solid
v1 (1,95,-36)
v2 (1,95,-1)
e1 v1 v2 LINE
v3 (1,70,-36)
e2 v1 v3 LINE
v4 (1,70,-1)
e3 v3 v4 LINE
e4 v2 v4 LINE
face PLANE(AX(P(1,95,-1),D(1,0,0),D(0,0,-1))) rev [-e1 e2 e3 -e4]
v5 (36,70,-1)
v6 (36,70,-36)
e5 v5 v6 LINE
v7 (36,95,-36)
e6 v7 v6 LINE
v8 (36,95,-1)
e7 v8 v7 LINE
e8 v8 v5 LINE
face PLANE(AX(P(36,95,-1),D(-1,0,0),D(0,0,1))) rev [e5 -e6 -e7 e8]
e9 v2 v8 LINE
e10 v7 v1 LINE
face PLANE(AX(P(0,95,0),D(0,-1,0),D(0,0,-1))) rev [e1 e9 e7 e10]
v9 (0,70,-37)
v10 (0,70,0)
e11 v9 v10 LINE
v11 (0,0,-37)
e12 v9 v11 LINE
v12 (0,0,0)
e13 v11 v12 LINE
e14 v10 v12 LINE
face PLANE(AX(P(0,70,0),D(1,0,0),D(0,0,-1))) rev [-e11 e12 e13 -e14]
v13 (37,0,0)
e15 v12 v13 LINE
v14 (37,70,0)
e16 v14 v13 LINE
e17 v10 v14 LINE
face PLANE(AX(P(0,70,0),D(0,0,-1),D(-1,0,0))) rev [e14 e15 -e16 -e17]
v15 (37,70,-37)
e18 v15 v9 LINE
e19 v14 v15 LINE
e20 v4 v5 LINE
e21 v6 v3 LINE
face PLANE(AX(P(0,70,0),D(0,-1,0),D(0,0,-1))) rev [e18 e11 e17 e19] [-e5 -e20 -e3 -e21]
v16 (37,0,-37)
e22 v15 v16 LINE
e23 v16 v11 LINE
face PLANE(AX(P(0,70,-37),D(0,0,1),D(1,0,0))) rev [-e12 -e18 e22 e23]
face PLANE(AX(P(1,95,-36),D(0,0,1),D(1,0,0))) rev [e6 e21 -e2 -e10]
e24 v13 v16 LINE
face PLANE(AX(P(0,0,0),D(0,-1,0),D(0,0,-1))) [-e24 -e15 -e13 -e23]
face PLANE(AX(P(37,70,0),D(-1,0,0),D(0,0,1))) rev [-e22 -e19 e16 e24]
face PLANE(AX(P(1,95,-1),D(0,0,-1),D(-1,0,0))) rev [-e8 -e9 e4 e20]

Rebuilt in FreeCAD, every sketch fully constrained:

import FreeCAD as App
import Part
import Sketcher
from FreeCAD import Vector

doc = App.newDocument("Part")
body = doc.addObject("PartDesign::Body", "Body")

sketch1 = body.newObject("Sketcher::SketchObject", "Sketch")
sketch1.AttachmentSupport = (doc.getObject("XZ_Plane"), [""])
sketch1.MapMode = "FlatFace"
sketch1.addGeometry([
    Part.LineSegment(Vector(0, -37, 0), Vector(0, 0, 0)),
    Part.LineSegment(Vector(0, 0, 0), Vector(37, 0, 0)),
    Part.LineSegment(Vector(37, 0, 0), Vector(37, -37, 0)),
    Part.LineSegment(Vector(37, -37, 0), Vector(0, -37, 0)),
], False)
sketch1.addConstraint([
    Sketcher.Constraint("Coincident", 0, 2, 1, 1),
    Sketcher.Constraint("Coincident", 1, 2, 2, 1),
    Sketcher.Constraint("Coincident", 2, 2, 3, 1),
    Sketcher.Constraint("Coincident", 3, 2, 0, 1),
    Sketcher.Constraint("Vertical", 0),
    Sketcher.Constraint("Horizontal", 1),
    Sketcher.Constraint("Vertical", 2),
    Sketcher.Constraint("Horizontal", 3),
    Sketcher.Constraint("Coincident", 0, 2, -1, 1),
    Sketcher.Constraint("Equal", 3, 0),
    Sketcher.Constraint("DistanceX", 1, 1, 1, 2, 37.0),
])
pad1 = body.newObject("PartDesign::Pad", "Pad")
pad1.Profile = sketch1
pad1.Length = 70
pad1.Reversed = True

sketch2 = body.newObject("Sketcher::SketchObject", "Sketch001")
sketch2.AttachmentSupport = (doc.getObject("XZ_Plane"), [""])
sketch2.MapMode = "FlatFace"
sketch2.AttachmentOffset = App.Placement(Vector(0, 0, -70), App.Rotation())
sketch2.addGeometry([
    Part.LineSegment(Vector(1, -36, 0), Vector(1, -1, 0)),
    Part.LineSegment(Vector(1, -1, 0), Vector(36, -1, 0)),
    Part.LineSegment(Vector(36, -1, 0), Vector(36, -36, 0)),
    Part.LineSegment(Vector(36, -36, 0), Vector(1, -36, 0)),
], False)
sketch2.addConstraint([
    Sketcher.Constraint("Coincident", 0, 2, 1, 1),
    Sketcher.Constraint("Coincident", 1, 2, 2, 1),
    Sketcher.Constraint("Coincident", 2, 2, 3, 1),
    Sketcher.Constraint("Coincident", 3, 2, 0, 1),
    Sketcher.Constraint("Vertical", 0),
    Sketcher.Constraint("Horizontal", 1),
    Sketcher.Constraint("Vertical", 2),
    Sketcher.Constraint("Horizontal", 3),
    Sketcher.Constraint("Equal", 3, 0),
    Sketcher.Constraint("DistanceX", 1, 1, 1, 2, 35.0),
    Sketcher.Constraint("DistanceX", -1, 1, 0, 2, 1.0),
    Sketcher.Constraint("DistanceY", 0, 2, -1, 1, 1.0),
])
pad2 = body.newObject("PartDesign::Pad", "Pad001")
pad2.Profile = sketch2
pad2.Length = 25
pad2.Reversed = True

doc.recompute()
